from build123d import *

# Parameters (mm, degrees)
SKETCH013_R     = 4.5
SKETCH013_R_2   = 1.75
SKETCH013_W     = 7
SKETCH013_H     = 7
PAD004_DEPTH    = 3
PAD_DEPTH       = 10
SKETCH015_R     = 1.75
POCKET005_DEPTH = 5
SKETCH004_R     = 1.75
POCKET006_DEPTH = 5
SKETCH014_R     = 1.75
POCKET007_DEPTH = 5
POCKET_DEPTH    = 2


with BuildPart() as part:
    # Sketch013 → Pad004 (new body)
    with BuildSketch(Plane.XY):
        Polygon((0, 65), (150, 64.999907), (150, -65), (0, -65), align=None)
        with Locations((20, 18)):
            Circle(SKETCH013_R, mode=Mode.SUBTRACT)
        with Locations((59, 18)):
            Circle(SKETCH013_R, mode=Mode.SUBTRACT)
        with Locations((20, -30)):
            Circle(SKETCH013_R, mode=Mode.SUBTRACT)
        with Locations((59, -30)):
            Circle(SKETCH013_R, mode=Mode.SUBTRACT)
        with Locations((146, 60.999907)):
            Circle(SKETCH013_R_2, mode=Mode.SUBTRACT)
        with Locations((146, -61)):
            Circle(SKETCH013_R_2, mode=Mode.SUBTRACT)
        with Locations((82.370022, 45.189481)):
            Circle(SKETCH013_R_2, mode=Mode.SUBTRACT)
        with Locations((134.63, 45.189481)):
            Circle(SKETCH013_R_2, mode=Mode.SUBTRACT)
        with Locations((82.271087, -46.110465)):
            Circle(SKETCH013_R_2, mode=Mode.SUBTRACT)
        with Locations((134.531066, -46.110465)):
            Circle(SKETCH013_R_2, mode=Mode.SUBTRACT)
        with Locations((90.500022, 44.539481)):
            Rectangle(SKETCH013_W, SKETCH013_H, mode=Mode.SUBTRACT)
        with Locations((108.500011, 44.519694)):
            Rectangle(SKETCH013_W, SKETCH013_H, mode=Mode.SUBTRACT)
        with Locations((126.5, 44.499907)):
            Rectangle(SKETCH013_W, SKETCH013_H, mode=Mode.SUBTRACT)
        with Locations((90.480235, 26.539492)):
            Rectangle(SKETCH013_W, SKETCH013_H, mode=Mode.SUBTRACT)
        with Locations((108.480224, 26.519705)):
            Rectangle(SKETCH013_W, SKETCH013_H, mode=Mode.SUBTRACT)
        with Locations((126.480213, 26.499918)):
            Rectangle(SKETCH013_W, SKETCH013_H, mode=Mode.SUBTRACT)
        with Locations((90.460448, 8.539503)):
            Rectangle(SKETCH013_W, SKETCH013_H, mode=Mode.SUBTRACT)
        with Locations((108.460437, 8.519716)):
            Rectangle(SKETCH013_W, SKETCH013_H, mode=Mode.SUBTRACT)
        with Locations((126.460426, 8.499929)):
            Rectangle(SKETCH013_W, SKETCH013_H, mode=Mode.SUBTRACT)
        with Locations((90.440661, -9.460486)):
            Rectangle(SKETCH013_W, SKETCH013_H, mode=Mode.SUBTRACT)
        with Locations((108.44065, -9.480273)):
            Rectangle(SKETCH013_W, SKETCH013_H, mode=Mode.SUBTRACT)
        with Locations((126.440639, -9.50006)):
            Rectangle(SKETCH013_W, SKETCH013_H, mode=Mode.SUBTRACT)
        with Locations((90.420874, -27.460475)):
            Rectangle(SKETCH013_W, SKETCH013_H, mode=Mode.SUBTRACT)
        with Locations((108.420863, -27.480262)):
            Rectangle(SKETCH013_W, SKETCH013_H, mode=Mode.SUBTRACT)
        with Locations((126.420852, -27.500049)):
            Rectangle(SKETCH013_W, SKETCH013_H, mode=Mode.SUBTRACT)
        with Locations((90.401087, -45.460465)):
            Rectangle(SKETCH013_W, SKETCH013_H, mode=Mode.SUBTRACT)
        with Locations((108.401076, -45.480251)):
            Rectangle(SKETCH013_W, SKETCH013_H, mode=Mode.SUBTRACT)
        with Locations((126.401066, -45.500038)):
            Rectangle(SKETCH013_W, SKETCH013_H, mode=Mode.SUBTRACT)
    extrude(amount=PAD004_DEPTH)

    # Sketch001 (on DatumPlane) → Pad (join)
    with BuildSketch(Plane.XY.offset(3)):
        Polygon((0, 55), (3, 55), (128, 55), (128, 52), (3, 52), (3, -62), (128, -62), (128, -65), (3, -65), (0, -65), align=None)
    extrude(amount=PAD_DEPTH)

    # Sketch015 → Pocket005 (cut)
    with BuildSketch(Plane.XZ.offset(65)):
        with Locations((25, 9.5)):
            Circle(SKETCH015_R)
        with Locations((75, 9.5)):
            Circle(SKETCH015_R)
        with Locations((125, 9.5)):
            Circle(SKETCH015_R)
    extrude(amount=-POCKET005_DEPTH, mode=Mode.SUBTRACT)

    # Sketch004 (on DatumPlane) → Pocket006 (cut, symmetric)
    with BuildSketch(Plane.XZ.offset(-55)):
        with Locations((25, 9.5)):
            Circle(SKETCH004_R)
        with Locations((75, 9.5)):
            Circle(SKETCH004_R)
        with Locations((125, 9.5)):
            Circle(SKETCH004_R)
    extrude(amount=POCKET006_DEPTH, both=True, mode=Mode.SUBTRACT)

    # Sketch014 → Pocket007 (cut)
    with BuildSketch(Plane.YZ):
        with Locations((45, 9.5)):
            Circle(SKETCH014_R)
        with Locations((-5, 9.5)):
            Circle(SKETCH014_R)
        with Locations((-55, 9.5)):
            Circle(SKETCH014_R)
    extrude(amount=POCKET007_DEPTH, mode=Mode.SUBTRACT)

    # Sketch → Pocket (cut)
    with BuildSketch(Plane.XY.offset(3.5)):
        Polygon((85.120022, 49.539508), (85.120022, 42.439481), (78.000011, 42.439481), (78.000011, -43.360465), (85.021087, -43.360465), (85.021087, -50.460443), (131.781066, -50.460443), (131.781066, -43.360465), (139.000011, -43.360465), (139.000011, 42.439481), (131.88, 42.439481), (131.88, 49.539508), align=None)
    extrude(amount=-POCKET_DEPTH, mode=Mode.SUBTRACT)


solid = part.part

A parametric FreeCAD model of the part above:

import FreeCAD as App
import Part
import Sketcher

V = App.Vector


def add_polygon(sketch, points):
    """Adds a closed chain of lines whose ends are joined by coincident constraints."""
    first, n = sketch.GeometryCount, len(points)
    for a, b in zip(points, points[1:] + points[:1]):
        sketch.addGeometry(Part.LineSegment(App.Vector(*a, 0), App.Vector(*b, 0)), False)
    for i in range(n):
        sketch.addConstraint(Sketcher.Constraint("Coincident", first + i, 2, first + (i + 1) % n, 1))

doc = App.newDocument("Part")
body = doc.addObject("PartDesign::Body", "Body")

# Sketch on XY plane
sketch1 = body.newObject("Sketcher::SketchObject", "Sketch")
sketch1.AttachmentSupport = (doc.getObject("XY_Plane"), [""])
sketch1.MapMode = "FlatFace"
add_polygon(sketch1, [(150, 65), (0, 65), (0, -65), (150, -65)])  # lines 0-3
sketch1.addGeometry(Part.Circle(V(146, -61, 0), V(0, 0, 1), 1.8), False)  # 4
sketch1.addGeometry(Part.Circle(V(134.5, -46.1, 0), V(0, 0, 1), 1.8), False)  # 5
add_polygon(sketch1, [(122.9, -49), (122.9, -42), (129.9, -42), (129.9, -49)])  # lines 6-9
add_polygon(sketch1, [(104.9, -49), (104.9, -42), (111.9, -42), (111.9, -49)])  # lines 10-13
add_polygon(sketch1, [(86.9, -49), (86.9, -42), (93.9, -42), (93.9, -49)])  # lines 14-17
sketch1.addGeometry(Part.Circle(V(82.3, -46.1, 0), V(0, 0, 1), 1.8), False)  # 18
add_polygon(sketch1, [(122.9, -31), (122.9, -24), (129.9, -24), (129.9, -31)])  # lines 19-22
add_polygon(sketch1, [(122.9, -13), (122.9, -6), (129.9, -6), (129.9, -13)])  # lines 23-26
add_polygon(sketch1, [(104.9, -31), (104.9, -24), (111.9, -24), (111.9, -31)])  # lines 27-30
add_polygon(sketch1, [(86.9, -31), (86.9, -24), (93.9, -24), (93.9, -31)])  # lines 31-34
add_polygon(sketch1, [(104.9, -13), (104.9, -6), (111.9, -6), (111.9, -13)])  # lines 35-38
add_polygon(sketch1, [(86.9, -13), (86.9, -6), (93.9, -6), (93.9, -13)])  # lines 39-42
sketch1.addGeometry(Part.Circle(V(59, -30, 0), V(0, 0, 1), 4.5), False)  # 43
sketch1.addGeometry(Part.Circle(V(20, -30, 0), V(0, 0, 1), 4.5), False)  # 44
add_polygon(sketch1, [(123, 5), (123, 12), (130, 12), (130, 5)])  # lines 45-48
add_polygon(sketch1, [(123, 23), (123, 30), (130, 30), (130, 23)])  # lines 49-52
add_polygon(sketch1, [(105, 5), (105, 12), (112, 12), (112, 5)])  # lines 53-56
add_polygon(sketch1, [(87, 5), (87, 12), (94, 12), (94, 5)])  # lines 57-60
add_polygon(sketch1, [(105, 23), (105, 30), (112, 30), (112, 23)])  # lines 61-64
add_polygon(sketch1, [(87, 23), (87, 30), (94, 30), (94, 23)])  # lines 65-68
sketch1.addGeometry(Part.Circle(V(134.6, 45.2, 0), V(0, 0, 1), 1.8), False)  # 69
add_polygon(sketch1, [(123, 41), (123, 48), (130, 48), (130, 41)])  # lines 70-73
sketch1.addGeometry(Part.Circle(V(146, 61, 0), V(0, 0, 1), 1.8), False)  # 74
add_polygon(sketch1, [(105, 41), (105, 48), (112, 48), (112, 41)])  # lines 75-78
add_polygon(sketch1, [(87, 41), (87, 48), (94, 48), (94, 41)])  # lines 79-82
sketch1.addGeometry(Part.Circle(V(82.4, 45.2, 0), V(0, 0, 1), 1.8), False)  # 83
sketch1.addGeometry(Part.Circle(V(59, 18, 0), V(0, 0, 1), 4.5), False)  # 84
sketch1.addGeometry(Part.Circle(V(20, 18, 0), V(0, 0, 1), 4.5), False)  # 85
sketch1.addConstraint([
    Sketcher.Constraint("Vertical", 1),
    Sketcher.Constraint("Horizontal", 2),
    Sketcher.Constraint("Vertical", 3),
    Sketcher.Constraint("Vertical", 6),
    Sketcher.Constraint("Horizontal", 7),
    Sketcher.Constraint("Vertical", 8),
    Sketcher.Constraint("Horizontal", 9),
    Sketcher.Constraint("Vertical", 10),
    Sketcher.Constraint("Horizontal", 11),
    Sketcher.Constraint("Vertical", 12),
    Sketcher.Constraint("Horizontal", 13),
    Sketcher.Constraint("Vertical", 14),
    Sketcher.Constraint("Horizontal", 15),
    Sketcher.Constraint("Vertical", 16),
    Sketcher.Constraint("Horizontal", 17),
    Sketcher.Constraint("Vertical", 19),
    Sketcher.Constraint("Horizontal", 20),
    Sketcher.Constraint("Vertical", 21),
    Sketcher.Constraint("Horizontal", 22),
    Sketcher.Constraint("Vertical", 23),
    Sketcher.Constraint("Horizontal", 24),
    Sketcher.Constraint("Vertical", 25),
    Sketcher.Constraint("Horizontal", 26),
    Sketcher.Constraint("Vertical", 27),
    Sketcher.Constraint("Horizontal", 28),
    Sketcher.Constraint("Vertical", 29),
    Sketcher.Constraint("Horizontal", 30),
    Sketcher.Constraint("Vertical", 31),
    Sketcher.Constraint("Horizontal", 32),
    Sketcher.Constraint("Vertical", 33),
    Sketcher.Constraint("Horizontal", 34),
    Sketcher.Constraint("Vertical", 35),
    Sketcher.Constraint("Horizontal", 36),
    Sketcher.Constraint("Vertical", 37),
    Sketcher.Constraint("Horizontal", 38),
    Sketcher.Constraint("Vertical", 39),
    Sketcher.Constraint("Horizontal", 40),
    Sketcher.Constraint("Vertical", 41),
    Sketcher.Constraint("Horizontal", 42),
    Sketcher.Constraint("Vertical", 45),
    Sketcher.Constraint("Horizontal", 46),
    Sketcher.Constraint("Vertical", 47),
    Sketcher.Constraint("Horizontal", 48),
    Sketcher.Constraint("Vertical", 49),
    Sketcher.Constraint("Horizontal", 50),
    Sketcher.Constraint("Vertical", 51),
    Sketcher.Constraint("Horizontal", 52),
    Sketcher.Constraint("Vertical", 53),
    Sketcher.Constraint("Horizontal", 54),
    Sketcher.Constraint("Vertical", 55),
    Sketcher.Constraint("Horizontal", 56),
    Sketcher.Constraint("Vertical", 57),
    Sketcher.Constraint("Horizontal", 58),
    Sketcher.Constraint("Vertical", 59),
    Sketcher.Constraint("Horizontal", 60),
    Sketcher.Constraint("Vertical", 61),
    Sketcher.Constraint("Horizontal", 62),
    Sketcher.Constraint("Vertical", 63),
    Sketcher.Constraint("Horizontal", 64),
    Sketcher.Constraint("Vertical", 65),
    Sketcher.Constraint("Horizontal", 66),
    Sketcher.Constraint("Vertical", 67),
    Sketcher.Constraint("Horizontal", 68),
    Sketcher.Constraint("Vertical", 70),
    Sketcher.Constraint("Horizontal", 71),
    Sketcher.Constraint("Vertical", 72),
    Sketcher.Constraint("Horizontal", 73),
    Sketcher.Constraint("Vertical", 75),
    Sketcher.Constraint("Horizontal", 76),
    Sketcher.Constraint("Vertical", 77),
    Sketcher.Constraint("Horizontal", 78),
    Sketcher.Constraint("Vertical", 79),
    Sketcher.Constraint("Horizontal", 80),
    Sketcher.Constraint("Vertical", 81),
    Sketcher.Constraint("Horizontal", 82),
    Sketcher.Constraint("Equal", 4, 5),
    Sketcher.Constraint("Equal", 5, 18),
    Sketcher.Constraint("Equal", 43, 44),
    Sketcher.Constraint("Equal", 18, 69),
    Sketcher.Constraint("Equal", 69, 74),
    Sketcher.Constraint("Equal", 74, 83),
    Sketcher.Constraint("Equal", 44, 84),
    Sketcher.Constraint("Equal", 84, 85),
    Sketcher.Constraint("Symmetric", 0, 2, 1, 2, -1, 1),
    Sketcher.Constraint("Horizontal", 5, 3, 18, 3),
    Sketcher.Constraint("Horizontal", 43, 3, 44, 3),
    Sketcher.Constraint("Horizontal", 69, 3, 83, 3),
    Sketcher.Constraint("Horizontal", 84, 3, 85, 3),
    Sketcher.Constraint("Vertical", 4, 3, 74, 3),
    Sketcher.Constraint("Vertical", 43, 3, 84, 3),
    Sketcher.Constraint("Vertical", 44, 3, 85, 3),
    Sketcher.Constraint("Equal", 9, 11),
    Sketcher.Constraint("Equal", 13, 15),
    Sketcher.Constraint("Equal", 17, 20),
    Sketcher.Constraint("Equal", 22, 24),
    Sketcher.Constraint("Equal", 26, 28),
    Sketcher.Constraint("Equal", 30, 32),
    Sketcher.Constraint("Equal", 34, 36),
    Sketcher.Constraint("Equal", 38, 40),
    Sketcher.Constraint("Equal", 42, 46),
    Sketcher.Constraint("Equal", 48, 50),
    Sketcher.Constraint("Equal", 52, 54),
    Sketcher.Constraint("Equal", 56, 58),
    Sketcher.Constraint("Equal", 60, 62),
    Sketcher.Constraint("Equal", 64, 66),
    Sketcher.Constraint("Equal", 68, 71),
    Sketcher.Constraint("Equal", 73, 76),
    Sketcher.Constraint("Equal", 78, 80),
    Sketcher.Constraint("Equal", 82, 6),
    Sketcher.Constraint("Equal", 8, 10),
    Sketcher.Constraint("Equal", 12, 14),
    Sketcher.Constraint("Equal", 16, 19),
    Sketcher.Constraint("Equal", 21, 23),
    Sketcher.Constraint("Equal", 25, 27),
    Sketcher.Constraint("Equal", 29, 31),
    Sketcher.Constraint("Equal", 33, 35),
    Sketcher.Constraint("Equal", 37, 39),
    Sketcher.Constraint("Equal", 41, 45),
    Sketcher.Constraint("Equal", 47, 49),
    Sketcher.Constraint("Equal", 51, 53),
    Sketcher.Constraint("Equal", 55, 57),
    Sketcher.Constraint("Equal", 59, 61),
    Sketcher.Constraint("Equal", 63, 65),
    Sketcher.Constraint("Equal", 67, 70),
    Sketcher.Constraint("Equal", 72, 75),
    Sketcher.Constraint("Equal", 77, 79),
    Sketcher.Constraint("Diameter", 43, 9.0),
    Sketcher.Constraint("Diameter", 4, 3.5),
    Sketcher.Constraint("DistanceX", 2, 1, 2, 2, 150.0),
    Sketcher.Constraint("DistanceX", 7, 1, 7, 2, 7.0),
    Sketcher.Constraint("DistanceY", 1, 2, 1, 1, 130.0),
    Sketcher.Constraint("DistanceX", -1, 1, 4, 3, 146.0),
    Sketcher.Constraint("DistanceY", 4, 3, -1, 1, 61.0),
    Sketcher.Constraint("DistanceX", -1, 1, 43, 3, 59.0),
    Sketcher.Constraint("DistanceY", 43, 3, -1, 1, 30.0),
    Sketcher.Constraint("DistanceX", -1, 1, 44, 3, 20.0),
    Sketcher.Constraint("DistanceY", -1, 1, 84, 3, 18.0),
    Sketcher.Constraint("DistanceX", -1, 1, 70, 2, 123.0),
    Sketcher.Constraint("DistanceX", -1, 1, 69, 3, 134.63),
    Sketcher.Constraint("DistanceY", 3, 1, 3, 2, 129.999907),
    Sketcher.Constraint("DistanceY", -1, 1, 69, 3, 45.189481),
    Sketcher.Constraint("DistanceY", 6, 2, -1, 1, 42.000038),
    Sketcher.Constraint("DistanceY", 10, 2, -1, 1, 41.980251),
    Sketcher.Constraint("DistanceX", -1, 1, 19, 2, 122.920852),
    Sketcher.Constraint("DistanceY", 19, 2, -1, 1, 24.000049),
    Sketcher.Constraint("DistanceX", -1, 1, 23, 2, 122.940639),
    Sketcher.Constraint("DistanceY", 23, 2, -1, 1, 6.00006),
    Sketcher.Constraint("DistanceY", 27, 2, -1, 1, 23.980262),
    Sketcher.Constraint("DistanceX", -1, 1, 35, 2, 104.94065),
    Sketcher.Constraint("DistanceX", -1, 1, 39, 2, 86.940661),
    Sketcher.Constraint("DistanceY", -1, 1, 45, 2, 11.999929),
    Sketcher.Constraint("DistanceY", -1, 1, 49, 2, 29.999918),
    Sketcher.Constraint("DistanceX", -1, 1, 57, 2, 86.960448),
    Sketcher.Constraint("DistanceY", -1, 1, 65, 2, 30.039492),
    Sketcher.Constraint("DistanceX", -1, 1, 75, 2, 105.000011),
    Sketcher.Constraint("DistanceX", -1, 1, 79, 2, 87.000022),
    Sketcher.Constraint("DistanceY", -1, 1, 79, 2, 48.039481),
    Sketcher.Constraint("DistanceX", -1, 1, 5, 3, 134.531066),
    Sketcher.Constraint("DistanceY", 5, 3, -1, 1, 46.110465),
    Sketcher.Constraint("DistanceX", -1, 1, 18, 3, 82.271087),
    Sketcher.Constraint("DistanceY", -1, 1, 74, 3, 60.999907),
    Sketcher.Constraint("DistanceX", -1, 1, 83, 3, 82.370022),
    Sketcher.Constraint("DistanceX", -1, 1, 6, 2, 122.901066),
    Sketcher.Constraint("DistanceX", -1, 1, 10, 2, 104.901076),
    Sketcher.Constraint("DistanceX", -1, 1, 14, 2, 86.901087),
    Sketcher.Constraint("DistanceY", 14, 2, -1, 1, 41.960465),
    Sketcher.Constraint("DistanceX", -1, 1, 27, 2, 104.920863),
    Sketcher.Constraint("DistanceX", -1, 1, 31, 2, 86.920874),
    Sketcher.Constraint("DistanceY", 31, 2, -1, 1, 23.960475),
    Sketcher.Constraint("DistanceY", 35, 2, -1, 1, 5.980273),
    Sketcher.Constraint("DistanceY", 39, 2, -1, 1, 5.960486),
    Sketcher.Constraint("DistanceX", -1, 1, 45, 2, 122.960426),
    Sketcher.Constraint("DistanceX", -1, 1, 49, 2, 122.980213),
    Sketcher.Constraint("DistanceX", -1, 1, 53, 2, 104.960437),
    Sketcher.Constraint("DistanceY", -1, 1, 53, 2, 12.019716),
    Sketcher.Constraint("DistanceY", -1, 1, 57, 2, 12.039503),
    Sketcher.Constraint("DistanceX", -1, 1, 61, 2, 104.980224),
    Sketcher.Constraint("DistanceY", -1, 1, 61, 2, 30.019705),
    Sketcher.Constraint("DistanceX", -1, 1, 65, 2, 86.980235),
    Sketcher.Constraint("DistanceY", -1, 1, 70, 2, 47.999907),
    Sketcher.Constraint("DistanceY", -1, 1, 75, 2, 48.019694),
])
pad1 = body.newObject("PartDesign::Pad", "Pad")
pad1.Profile = sketch1
pad1.Length = 3

# Sketch on XY plane
sketch2 = body.newObject("Sketcher::SketchObject", "Sketch001")
sketch2.AttachmentSupport = (doc.getObject("XY_Plane"), [""])
sketch2.MapMode = "FlatFace"
sketch2.AttachmentOffset = App.Placement(V(0, 0, 3), App.Rotation())
add_polygon(sketch2, [(128, 55), (0, 55), (0, -65), (128, -65), (128, -62), (3, -62), (3, 52), (128, 52)])  # lines 0-7
sketch2.addConstraint([
    Sketcher.Constraint("Horizontal", 0),
    Sketcher.Constraint("Vertical", 1),
    Sketcher.Constraint("Horizontal", 2),
    Sketcher.Constraint("Vertical", 3),
    Sketcher.Constraint("Horizontal", 4),
    Sketcher.Constraint("Vertical", 5),
    Sketcher.Constraint("Horizontal", 6),
    Sketcher.Constraint("Vertical", 7),
    Sketcher.Constraint("PointOnObject", 0, 2, -2),
    Sketcher.Constraint("Vertical", 3, 2, 6, 2),
    Sketcher.Constraint("Equal", 3, 7),
    Sketcher.Constraint("DistanceX", 0, 2, 0, 1, 128.0),
    Sketcher.Constraint("DistanceX", 4, 2, 4, 1, 125.0),
    Sketcher.Constraint("DistanceY", 1, 2, 1, 1, 120.0),
    Sketcher.Constraint("DistanceY", 3, 1, 3, 2, 3.0),
    Sketcher.Constraint("DistanceY", -1, 1, 0, 2, 55.0),
])
pad2 = body.newObject("PartDesign::Pad", "Pad001")
pad2.Profile = sketch2
pad2.Length = 10

# Sketch on XZ plane
sketch3 = body.newObject("Sketcher::SketchObject", "Sketch002")
sketch3.AttachmentSupport = (doc.getObject("XZ_Plane"), [""])
sketch3.MapMode = "FlatFace"
sketch3.AttachmentOffset = App.Placement(V(0, 0, 65), App.Rotation())
sketch3.addGeometry([
    Part.Circle(V(25, 9.5, 0), V(0, 0, 1), 1.8),
    Part.Circle(V(75, 9.5, 0), V(0, 0, 1), 1.8),
    Part.Circle(V(125, 9.5, 0), V(0, 0, 1), 1.8),
], False)
sketch3.addConstraint([
    Sketcher.Constraint("Equal", 0, 1),
    Sketcher.Constraint("Equal", 1, 2),
    Sketcher.Constraint("Horizontal", 0, 3, 1, 3),
    Sketcher.Constraint("Horizontal", 1, 3, 2, 3),
    Sketcher.Constraint("Diameter", 0, 3.5),
    Sketcher.Constraint("DistanceX", -1, 1, 0, 3, 25.0),
    Sketcher.Constraint("DistanceX", -1, 1, 1, 3, 75.0),
    Sketcher.Constraint("DistanceX", -1, 1, 2, 3, 125.0),
    Sketcher.Constraint("DistanceY", -1, 1, 0, 3, 9.5),
])
pocket1 = body.newObject("PartDesign::Pocket", "Pocket")
pocket1.Profile = sketch3
pocket1.Length = 5

# Sketch on XZ plane
sketch4 = body.newObject("Sketcher::SketchObject", "Sketch003")
sketch4.AttachmentSupport = (doc.getObject("XZ_Plane"), [""])
sketch4.MapMode = "FlatFace"
sketch4.AttachmentOffset = App.Placement(V(0, 0, -55), App.Rotation())
sketch4.addGeometry([
    Part.Circle(V(25, 9.5, 0), V(0, 0, 1), 1.8),
    Part.Circle(V(75, 9.5, 0), V(0, 0, 1), 1.8),
    Part.Circle(V(125, 9.5, 0), V(0, 0, 1), 1.8),
], False)
sketch4.addConstraint([
    Sketcher.Constraint("Equal", 0, 1),
    Sketcher.Constraint("Equal", 1, 2),
    Sketcher.Constraint("Horizontal", 0, 3, 1, 3),
    Sketcher.Constraint("Horizontal", 1, 3, 2, 3),
    Sketcher.Constraint("Diameter", 0, 3.5),
    Sketcher.Constraint("DistanceX", -1, 1, 0, 3, 25.0),
    Sketcher.Constraint("DistanceX", -1, 1, 1, 3, 75.0),
    Sketcher.Constraint("DistanceX", -1, 1, 2, 3, 125.0),
    Sketcher.Constraint("DistanceY", -1, 1, 0, 3, 9.5),
])
pocket2 = body.newObject("PartDesign::Pocket", "Pocket001")
pocket2.Profile = sketch4
pocket2.Length = 10
pocket2.Midplane = True

# Sketch on YZ plane
sketch5 = body.newObject("Sketcher::SketchObject", "Sketch004")
sketch5.AttachmentSupport = (doc.getObject("YZ_Plane"), [""])
sketch5.MapMode = "FlatFace"
sketch5.addGeometry([
    Part.Circle(V(45, 9.5, 0), V(0, 0, 1), 1.8),
    Part.Circle(V(-5, 9.5, 0), V(0, 0, 1), 1.8),
    Part.Circle(V(-55, 9.5, 0), V(0, 0, 1), 1.8),
], False)
sketch5.addConstraint([
    Sketcher.Constraint("Equal", 0, 1),
    Sketcher.Constraint("Equal", 1, 2),
    Sketcher.Constraint("Horizontal", 0, 3, 1, 3),
    Sketcher.Constraint("Horizontal", 1, 3, 2, 3),
    Sketcher.Constraint("Diameter", 0, 3.5),
    Sketcher.Constraint("DistanceX", -1, 1, 0, 3, 45.0),
    Sketcher.Constraint("DistanceX", 1, 3, -1, 1, 5.0),
    Sketcher.Constraint("DistanceX", 2, 3, -1, 1, 55.0),
    Sketcher.Constraint("DistanceY", -1, 1, 0, 3, 9.5),
])
pocket3 = body.newObject("PartDesign::Pocket", "Pocket002")
pocket3.Profile = sketch5
pocket3.Length = 5
pocket3.Reversed = True

# Sketch on XY plane
sketch6 = body.newObject("Sketcher::SketchObject", "Sketch005")
sketch6.AttachmentSupport = (doc.getObject("XY_Plane"), [""])
sketch6.MapMode = "FlatFace"
sketch6.AttachmentOffset = App.Placement(V(0, 0, 3.5), App.Rotation())
add_polygon(sketch6, [(85, 50), (85, 42), (78, 42), (78, -43), (85, -43), (85, -50), (132, -50), (132, -43), (139, -43), (139, 42), (132, 42), (132, 50)])  # lines 0-11
sketch6.addConstraint([
    Sketcher.Constraint("Vertical", 0),
    Sketcher.Constraint("Horizontal", 1),
    Sketcher.Constraint("Vertical", 2),
    Sketcher.Constraint("Horizontal", 3),
    Sketcher.Constraint("Vertical", 4),
    Sketcher.Constraint("Horizontal", 5),
    Sketcher.Constraint("Vertical", 6),
    Sketcher.Constraint("Horizontal", 7),
    Sketcher.Constraint("Vertical", 8),
    Sketcher.Constraint("Horizontal", 9),
    Sketcher.Constraint("Vertical", 10),
    Sketcher.Constraint("Horizontal", 11),
    Sketcher.Constraint("Horizontal", 3, 2, 6, 2),
    Sketcher.Constraint("Horizontal", 1, 2, 8, 2),
    Sketcher.Constraint("Equal", 1, 9),
    Sketcher.Constraint("Equal", 5, 11),
    Sketcher.Constraint("DistanceX", 2, 2, 7, 2, 61.0),
    Sketcher.Constraint("DistanceX", -1, 1, 9, 2, 131.88),
    Sketcher.Constraint("DistanceX", 1, 2, 1, 1, 7.120011),
    Sketcher.Constraint("DistanceX", 3, 1, 3, 2, 7.021076),
    Sketcher.Constraint("DistanceY", 0, 2, 0, 1, 7.100027),
    Sketcher.Constraint("DistanceY", 2, 2, 2, 1, 85.799946),
    Sketcher.Constraint("DistanceY", 4, 2, 4, 1, 7.099978),
    Sketcher.Constraint("DistanceY", -1, 1, 0, 2, 42.439481),
])
pocket4 = body.newObject("PartDesign::Pocket", "Pocket003")
pocket4.Profile = sketch6
pocket4.Length = 2

doc.recompute()
